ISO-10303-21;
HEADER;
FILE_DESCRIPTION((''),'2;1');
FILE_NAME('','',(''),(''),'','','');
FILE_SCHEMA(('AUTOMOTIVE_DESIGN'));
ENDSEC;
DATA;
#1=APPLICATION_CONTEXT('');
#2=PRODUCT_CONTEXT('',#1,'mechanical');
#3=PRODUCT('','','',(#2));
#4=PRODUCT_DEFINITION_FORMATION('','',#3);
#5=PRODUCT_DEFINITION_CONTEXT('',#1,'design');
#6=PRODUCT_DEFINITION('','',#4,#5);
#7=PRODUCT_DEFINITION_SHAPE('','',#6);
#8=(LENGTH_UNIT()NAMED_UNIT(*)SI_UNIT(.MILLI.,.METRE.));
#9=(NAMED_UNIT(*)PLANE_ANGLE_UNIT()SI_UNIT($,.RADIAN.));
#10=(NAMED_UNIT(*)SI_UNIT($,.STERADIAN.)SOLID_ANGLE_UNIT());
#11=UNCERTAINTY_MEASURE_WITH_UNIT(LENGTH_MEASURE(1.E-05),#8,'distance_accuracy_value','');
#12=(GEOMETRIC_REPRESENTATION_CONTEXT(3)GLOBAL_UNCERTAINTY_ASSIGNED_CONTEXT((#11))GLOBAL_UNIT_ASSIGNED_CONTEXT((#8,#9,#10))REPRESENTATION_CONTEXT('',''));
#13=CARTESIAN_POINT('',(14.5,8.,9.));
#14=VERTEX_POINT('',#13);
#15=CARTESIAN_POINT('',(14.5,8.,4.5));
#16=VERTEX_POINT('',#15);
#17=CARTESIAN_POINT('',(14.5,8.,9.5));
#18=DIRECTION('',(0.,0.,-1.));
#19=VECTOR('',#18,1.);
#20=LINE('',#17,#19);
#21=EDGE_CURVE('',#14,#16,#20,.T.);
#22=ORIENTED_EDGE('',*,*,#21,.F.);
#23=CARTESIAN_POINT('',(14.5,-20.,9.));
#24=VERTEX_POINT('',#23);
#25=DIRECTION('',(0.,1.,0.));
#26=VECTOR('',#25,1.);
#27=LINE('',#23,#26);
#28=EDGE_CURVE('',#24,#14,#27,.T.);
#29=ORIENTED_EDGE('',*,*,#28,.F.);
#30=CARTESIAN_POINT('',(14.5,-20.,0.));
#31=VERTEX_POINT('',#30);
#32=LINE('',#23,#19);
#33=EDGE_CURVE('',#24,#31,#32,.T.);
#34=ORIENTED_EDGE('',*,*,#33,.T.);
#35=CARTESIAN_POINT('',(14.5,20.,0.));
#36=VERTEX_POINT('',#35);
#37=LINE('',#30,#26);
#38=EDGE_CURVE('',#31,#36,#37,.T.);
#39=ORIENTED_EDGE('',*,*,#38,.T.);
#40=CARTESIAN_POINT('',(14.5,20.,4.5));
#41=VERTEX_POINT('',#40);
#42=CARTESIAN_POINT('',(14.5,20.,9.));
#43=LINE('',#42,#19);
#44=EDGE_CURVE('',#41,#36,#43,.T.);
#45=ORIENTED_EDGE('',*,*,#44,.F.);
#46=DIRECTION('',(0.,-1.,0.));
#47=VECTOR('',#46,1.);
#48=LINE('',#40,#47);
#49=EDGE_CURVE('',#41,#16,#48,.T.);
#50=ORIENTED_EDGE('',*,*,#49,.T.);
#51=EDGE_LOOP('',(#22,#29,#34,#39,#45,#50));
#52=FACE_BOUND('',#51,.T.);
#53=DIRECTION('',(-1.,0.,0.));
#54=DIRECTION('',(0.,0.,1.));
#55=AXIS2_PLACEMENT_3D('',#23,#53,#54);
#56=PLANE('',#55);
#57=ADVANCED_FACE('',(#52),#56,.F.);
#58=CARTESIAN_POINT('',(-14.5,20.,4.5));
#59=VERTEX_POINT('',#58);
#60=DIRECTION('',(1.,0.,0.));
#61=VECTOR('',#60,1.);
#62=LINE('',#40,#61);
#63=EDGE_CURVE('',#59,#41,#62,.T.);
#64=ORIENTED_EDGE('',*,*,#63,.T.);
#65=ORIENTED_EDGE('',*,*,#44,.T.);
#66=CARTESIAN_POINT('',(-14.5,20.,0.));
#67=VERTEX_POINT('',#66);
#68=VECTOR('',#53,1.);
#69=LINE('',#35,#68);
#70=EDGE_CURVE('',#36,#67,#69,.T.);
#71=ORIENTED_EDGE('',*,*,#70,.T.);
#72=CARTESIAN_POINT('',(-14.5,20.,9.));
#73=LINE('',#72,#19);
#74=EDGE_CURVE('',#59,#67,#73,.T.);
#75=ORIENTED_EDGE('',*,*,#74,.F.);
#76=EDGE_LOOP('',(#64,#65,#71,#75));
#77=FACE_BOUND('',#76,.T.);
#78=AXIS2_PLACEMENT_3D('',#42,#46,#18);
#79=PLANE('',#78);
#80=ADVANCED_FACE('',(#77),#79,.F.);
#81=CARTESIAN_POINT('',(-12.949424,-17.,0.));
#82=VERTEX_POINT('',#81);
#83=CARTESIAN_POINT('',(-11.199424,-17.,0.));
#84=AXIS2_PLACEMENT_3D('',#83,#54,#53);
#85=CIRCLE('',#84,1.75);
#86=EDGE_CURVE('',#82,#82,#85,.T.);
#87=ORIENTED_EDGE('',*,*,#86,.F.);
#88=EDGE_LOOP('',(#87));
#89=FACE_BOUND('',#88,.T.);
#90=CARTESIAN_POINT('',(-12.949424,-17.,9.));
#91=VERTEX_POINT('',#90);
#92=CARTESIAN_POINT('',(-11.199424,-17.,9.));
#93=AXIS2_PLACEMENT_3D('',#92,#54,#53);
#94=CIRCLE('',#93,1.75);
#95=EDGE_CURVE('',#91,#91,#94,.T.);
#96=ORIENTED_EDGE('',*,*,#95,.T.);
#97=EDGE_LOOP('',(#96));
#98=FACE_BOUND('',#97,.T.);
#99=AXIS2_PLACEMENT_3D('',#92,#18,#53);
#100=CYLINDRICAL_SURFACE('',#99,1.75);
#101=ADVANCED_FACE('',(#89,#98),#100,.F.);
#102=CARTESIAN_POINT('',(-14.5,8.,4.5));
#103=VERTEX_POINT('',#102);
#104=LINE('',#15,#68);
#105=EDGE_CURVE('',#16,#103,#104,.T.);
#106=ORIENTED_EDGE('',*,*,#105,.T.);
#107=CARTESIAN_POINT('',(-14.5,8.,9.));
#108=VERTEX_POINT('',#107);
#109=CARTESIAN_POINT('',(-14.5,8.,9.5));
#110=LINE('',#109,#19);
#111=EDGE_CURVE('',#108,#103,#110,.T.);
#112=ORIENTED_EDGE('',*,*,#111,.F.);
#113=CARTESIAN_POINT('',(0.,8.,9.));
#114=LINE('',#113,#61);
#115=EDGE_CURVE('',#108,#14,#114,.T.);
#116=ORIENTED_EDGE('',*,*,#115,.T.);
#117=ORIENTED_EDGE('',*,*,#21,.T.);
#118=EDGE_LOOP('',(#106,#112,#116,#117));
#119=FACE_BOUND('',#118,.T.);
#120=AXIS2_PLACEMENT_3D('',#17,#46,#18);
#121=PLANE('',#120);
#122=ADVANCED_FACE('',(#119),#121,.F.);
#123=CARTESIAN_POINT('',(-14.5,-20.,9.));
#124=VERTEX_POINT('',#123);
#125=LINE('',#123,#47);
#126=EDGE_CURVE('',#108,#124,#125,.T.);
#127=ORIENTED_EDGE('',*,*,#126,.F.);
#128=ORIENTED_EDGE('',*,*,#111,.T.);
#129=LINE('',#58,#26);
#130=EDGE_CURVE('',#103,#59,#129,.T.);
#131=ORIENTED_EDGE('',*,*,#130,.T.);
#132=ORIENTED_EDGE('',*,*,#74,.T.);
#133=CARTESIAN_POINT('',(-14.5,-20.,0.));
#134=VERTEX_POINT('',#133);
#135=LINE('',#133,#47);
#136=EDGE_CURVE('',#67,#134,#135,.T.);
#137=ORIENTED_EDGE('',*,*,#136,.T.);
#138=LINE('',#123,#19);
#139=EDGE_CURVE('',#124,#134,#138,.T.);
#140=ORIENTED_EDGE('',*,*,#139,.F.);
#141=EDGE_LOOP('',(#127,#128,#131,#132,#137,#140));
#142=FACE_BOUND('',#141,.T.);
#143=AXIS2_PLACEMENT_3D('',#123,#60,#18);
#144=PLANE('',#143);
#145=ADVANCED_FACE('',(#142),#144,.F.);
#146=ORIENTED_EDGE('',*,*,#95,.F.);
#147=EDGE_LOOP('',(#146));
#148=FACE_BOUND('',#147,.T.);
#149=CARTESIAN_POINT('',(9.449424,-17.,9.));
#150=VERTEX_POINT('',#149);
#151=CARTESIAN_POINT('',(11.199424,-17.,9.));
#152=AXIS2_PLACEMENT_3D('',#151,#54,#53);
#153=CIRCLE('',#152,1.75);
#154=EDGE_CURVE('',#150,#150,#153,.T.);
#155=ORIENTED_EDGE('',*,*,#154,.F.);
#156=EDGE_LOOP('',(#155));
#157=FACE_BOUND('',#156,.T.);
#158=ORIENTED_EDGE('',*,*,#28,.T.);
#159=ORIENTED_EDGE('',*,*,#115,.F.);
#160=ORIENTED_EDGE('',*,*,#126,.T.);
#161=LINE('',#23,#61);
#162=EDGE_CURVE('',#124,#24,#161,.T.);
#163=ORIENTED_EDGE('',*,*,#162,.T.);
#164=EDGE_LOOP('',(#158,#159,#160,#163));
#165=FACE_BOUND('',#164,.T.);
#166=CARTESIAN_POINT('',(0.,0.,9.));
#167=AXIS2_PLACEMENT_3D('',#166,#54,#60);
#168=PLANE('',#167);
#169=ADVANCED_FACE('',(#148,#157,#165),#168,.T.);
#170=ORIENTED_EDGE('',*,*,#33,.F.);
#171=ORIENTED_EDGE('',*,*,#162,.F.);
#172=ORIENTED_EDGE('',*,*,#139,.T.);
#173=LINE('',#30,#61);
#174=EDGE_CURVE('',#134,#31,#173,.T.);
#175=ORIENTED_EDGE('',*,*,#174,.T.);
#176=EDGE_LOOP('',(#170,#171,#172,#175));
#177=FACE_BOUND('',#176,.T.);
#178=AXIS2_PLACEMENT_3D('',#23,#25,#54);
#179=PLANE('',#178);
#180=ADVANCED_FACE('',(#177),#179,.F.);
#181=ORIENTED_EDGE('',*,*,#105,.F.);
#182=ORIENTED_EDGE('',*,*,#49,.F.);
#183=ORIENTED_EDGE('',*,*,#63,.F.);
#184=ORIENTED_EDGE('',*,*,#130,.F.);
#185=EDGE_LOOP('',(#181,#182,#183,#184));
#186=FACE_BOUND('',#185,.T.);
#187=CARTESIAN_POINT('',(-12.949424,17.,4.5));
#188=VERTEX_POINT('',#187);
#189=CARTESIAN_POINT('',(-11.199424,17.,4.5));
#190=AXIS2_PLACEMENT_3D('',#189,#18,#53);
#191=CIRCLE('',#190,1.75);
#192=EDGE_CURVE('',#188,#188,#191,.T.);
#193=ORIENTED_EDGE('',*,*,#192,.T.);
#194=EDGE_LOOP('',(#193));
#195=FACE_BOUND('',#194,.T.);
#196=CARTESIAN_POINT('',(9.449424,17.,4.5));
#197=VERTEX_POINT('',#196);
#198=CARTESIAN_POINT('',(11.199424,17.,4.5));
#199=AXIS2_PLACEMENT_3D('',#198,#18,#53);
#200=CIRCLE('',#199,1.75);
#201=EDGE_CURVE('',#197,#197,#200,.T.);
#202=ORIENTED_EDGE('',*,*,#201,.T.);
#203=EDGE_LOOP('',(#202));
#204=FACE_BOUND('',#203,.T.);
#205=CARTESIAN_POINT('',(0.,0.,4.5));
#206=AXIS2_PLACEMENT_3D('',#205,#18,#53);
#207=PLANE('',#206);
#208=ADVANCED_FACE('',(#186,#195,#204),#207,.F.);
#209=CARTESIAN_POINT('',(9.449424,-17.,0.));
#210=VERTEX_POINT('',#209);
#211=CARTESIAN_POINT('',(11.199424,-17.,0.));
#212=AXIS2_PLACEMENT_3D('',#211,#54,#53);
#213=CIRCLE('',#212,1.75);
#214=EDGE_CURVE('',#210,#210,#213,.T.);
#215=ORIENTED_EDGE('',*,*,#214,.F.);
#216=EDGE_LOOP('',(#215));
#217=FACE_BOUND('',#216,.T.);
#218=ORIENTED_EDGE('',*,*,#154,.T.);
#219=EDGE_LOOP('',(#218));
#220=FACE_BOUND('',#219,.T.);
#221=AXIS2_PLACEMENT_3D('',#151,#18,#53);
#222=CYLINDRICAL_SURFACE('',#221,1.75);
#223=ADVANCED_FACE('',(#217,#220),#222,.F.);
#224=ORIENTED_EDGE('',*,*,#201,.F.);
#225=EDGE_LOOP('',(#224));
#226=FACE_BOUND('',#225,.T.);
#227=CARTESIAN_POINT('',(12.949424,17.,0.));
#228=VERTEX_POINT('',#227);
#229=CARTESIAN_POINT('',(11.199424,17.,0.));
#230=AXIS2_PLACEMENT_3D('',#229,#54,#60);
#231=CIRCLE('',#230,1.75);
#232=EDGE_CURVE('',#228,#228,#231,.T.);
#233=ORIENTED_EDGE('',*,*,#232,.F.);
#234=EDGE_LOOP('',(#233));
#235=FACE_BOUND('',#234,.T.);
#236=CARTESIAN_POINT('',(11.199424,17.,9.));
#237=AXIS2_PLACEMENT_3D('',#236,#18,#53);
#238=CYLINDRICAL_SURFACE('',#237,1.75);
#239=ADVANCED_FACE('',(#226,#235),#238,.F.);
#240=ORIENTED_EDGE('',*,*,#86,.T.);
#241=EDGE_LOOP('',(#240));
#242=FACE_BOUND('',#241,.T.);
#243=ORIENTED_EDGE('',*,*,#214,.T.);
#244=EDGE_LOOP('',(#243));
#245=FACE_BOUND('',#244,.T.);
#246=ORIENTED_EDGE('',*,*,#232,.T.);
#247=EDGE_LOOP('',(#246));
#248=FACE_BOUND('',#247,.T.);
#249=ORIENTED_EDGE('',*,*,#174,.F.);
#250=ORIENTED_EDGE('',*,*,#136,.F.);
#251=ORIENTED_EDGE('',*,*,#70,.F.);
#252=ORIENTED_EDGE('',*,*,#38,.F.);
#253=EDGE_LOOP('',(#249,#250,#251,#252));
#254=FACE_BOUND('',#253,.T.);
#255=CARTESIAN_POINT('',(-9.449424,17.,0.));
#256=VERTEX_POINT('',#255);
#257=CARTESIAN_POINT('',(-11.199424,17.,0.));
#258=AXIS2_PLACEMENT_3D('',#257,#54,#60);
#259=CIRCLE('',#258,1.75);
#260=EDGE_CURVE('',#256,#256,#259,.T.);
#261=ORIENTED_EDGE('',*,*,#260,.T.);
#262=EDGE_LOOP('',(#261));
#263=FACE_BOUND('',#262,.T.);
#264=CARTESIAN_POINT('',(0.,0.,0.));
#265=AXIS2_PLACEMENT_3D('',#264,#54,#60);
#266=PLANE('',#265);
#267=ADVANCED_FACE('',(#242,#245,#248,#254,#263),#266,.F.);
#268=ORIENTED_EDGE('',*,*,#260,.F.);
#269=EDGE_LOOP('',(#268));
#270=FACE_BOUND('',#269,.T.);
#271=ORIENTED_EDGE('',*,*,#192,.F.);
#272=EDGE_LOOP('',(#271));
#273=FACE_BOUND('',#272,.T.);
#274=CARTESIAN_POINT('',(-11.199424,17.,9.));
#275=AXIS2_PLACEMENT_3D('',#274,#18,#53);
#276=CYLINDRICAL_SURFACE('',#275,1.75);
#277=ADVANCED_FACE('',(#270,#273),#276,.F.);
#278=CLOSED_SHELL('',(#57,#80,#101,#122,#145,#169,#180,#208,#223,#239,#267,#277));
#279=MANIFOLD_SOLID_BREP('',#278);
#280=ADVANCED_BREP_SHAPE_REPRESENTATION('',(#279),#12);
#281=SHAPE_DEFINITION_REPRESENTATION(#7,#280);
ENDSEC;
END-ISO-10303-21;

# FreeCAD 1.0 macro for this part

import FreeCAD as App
import Part
import Sketcher

V = App.Vector
Q = App.Units.Quantity


def add_polygon(sketch, points):
    """Adds a closed chain of lines whose ends are joined by coincident constraints."""
    first, n = sketch.GeometryCount, len(points)
    for a, b in zip(points, points[1:] + points[:1]):
        sketch.addGeometry(Part.LineSegment(App.Vector(*a, 0), App.Vector(*b, 0)), False)
    for i in range(n):
        sketch.addConstraint(Sketcher.Constraint("Coincident", first + i, 2, first + (i + 1) % n, 1))

doc = App.newDocument("Part")
body = doc.addObject("PartDesign::Body", "Body")

# Sketch on XY plane
sketch1 = body.newObject("Sketcher::SketchObject", "Sketch")
sketch1.AttachmentSupport = (doc.getObject("XY_Plane"), [""])
sketch1.MapMode = "FlatFace"
add_polygon(sketch1, [(-14.5, 20), (-14.5, -20), (14.5, -20), (14.5, 20)])  # lines 0-3
sketch1.addGeometry(Part.Circle(V(-11.2, -17, 0), V(0, 0, 1), 1.8), False)  # 4
sketch1.addGeometry(Part.Circle(V(11.2, -17, 0), V(0, 0, 1), 1.8), False)  # 5
sketch1.addGeometry(Part.Circle(V(-11.2, 17, 0), V(0, 0, 1), 1.8), False)  # 6
sketch1.addGeometry(Part.Circle(V(11.2, 17, 0), V(0, 0, 1), 1.8), False)  # 7
sketch1.addConstraint([
    Sketcher.Constraint("Vertical", 0),
    Sketcher.Constraint("Horizontal", 1),
    Sketcher.Constraint("Vertical", 2),
    Sketcher.Constraint("Horizontal", 3),
    Sketcher.Constraint("Equal", 4, 5),
    Sketcher.Constraint("Equal", 5, 6),
    Sketcher.Constraint("Equal", 6, 7),
    Sketcher.Constraint("Symmetric", 5, 3, 6, 3, -1, 1),
    Sketcher.Constraint("Symmetric", 4, 3, 7, 3, -1, 1),
    Sketcher.Constraint("Symmetric", 0, 2, 2, 2, -1, 1),
    Sketcher.Constraint("Symmetric", 4, 3, 5, 3, -2),
    Sketcher.Constraint("Diameter", 4, Q("3.5 mm")),
    Sketcher.Constraint("DistanceX", 1, 1, 1, 2, Q("29 mm")),
    Sketcher.Constraint("DistanceY", 0, 2, 0, 1, Q("40 mm")),
    Sketcher.Constraint("DistanceY", 4, 3, -1, 1, Q("17 mm")),
    Sketcher.Constraint("DistanceX", 4, 3, -1, 1, Q("11.199424 mm")),
])
pad1 = body.newObject("PartDesign::Pad", "Pad")
pad1.Profile = sketch1
pad1.Length = 9

# Sketch on XY plane
sketch2 = body.newObject("Sketcher::SketchObject", "Sketch001")
sketch2.AttachmentSupport = (doc.getObject("XY_Plane"), [""])
sketch2.MapMode = "FlatFace"
sketch2.AttachmentOffset = App.Placement(V(0, 0, 4.5), App.Rotation())
add_polygon(sketch2, [(14, 20), (14, 8), (-14, 8), (-14, 20)])  # lines 0-3
sketch2.addConstraint([
    Sketcher.Constraint("Vertical", 0),
    Sketcher.Constraint("Horizontal", 1),
    Sketcher.Constraint("Vertical", 2),
    Sketcher.Constraint("Horizontal", 3),
    Sketcher.Constraint("DistanceX", 1, 2, 1, 1, Q("29 mm")),
    Sketcher.Constraint("DistanceY", 0, 2, 0, 1, Q("12 mm")),
    Sketcher.Constraint("DistanceY", -1, 1, 0, 2, Q("8 mm")),
    Sketcher.Constraint("DistanceX", -1, 1, 0, 2, Q("14.5 mm")),
])
pocket1 = body.newObject("PartDesign::Pocket", "Pocket")
pocket1.Profile = sketch2
pocket1.Length = 5
pocket1.Reversed = True

doc.recompute()
